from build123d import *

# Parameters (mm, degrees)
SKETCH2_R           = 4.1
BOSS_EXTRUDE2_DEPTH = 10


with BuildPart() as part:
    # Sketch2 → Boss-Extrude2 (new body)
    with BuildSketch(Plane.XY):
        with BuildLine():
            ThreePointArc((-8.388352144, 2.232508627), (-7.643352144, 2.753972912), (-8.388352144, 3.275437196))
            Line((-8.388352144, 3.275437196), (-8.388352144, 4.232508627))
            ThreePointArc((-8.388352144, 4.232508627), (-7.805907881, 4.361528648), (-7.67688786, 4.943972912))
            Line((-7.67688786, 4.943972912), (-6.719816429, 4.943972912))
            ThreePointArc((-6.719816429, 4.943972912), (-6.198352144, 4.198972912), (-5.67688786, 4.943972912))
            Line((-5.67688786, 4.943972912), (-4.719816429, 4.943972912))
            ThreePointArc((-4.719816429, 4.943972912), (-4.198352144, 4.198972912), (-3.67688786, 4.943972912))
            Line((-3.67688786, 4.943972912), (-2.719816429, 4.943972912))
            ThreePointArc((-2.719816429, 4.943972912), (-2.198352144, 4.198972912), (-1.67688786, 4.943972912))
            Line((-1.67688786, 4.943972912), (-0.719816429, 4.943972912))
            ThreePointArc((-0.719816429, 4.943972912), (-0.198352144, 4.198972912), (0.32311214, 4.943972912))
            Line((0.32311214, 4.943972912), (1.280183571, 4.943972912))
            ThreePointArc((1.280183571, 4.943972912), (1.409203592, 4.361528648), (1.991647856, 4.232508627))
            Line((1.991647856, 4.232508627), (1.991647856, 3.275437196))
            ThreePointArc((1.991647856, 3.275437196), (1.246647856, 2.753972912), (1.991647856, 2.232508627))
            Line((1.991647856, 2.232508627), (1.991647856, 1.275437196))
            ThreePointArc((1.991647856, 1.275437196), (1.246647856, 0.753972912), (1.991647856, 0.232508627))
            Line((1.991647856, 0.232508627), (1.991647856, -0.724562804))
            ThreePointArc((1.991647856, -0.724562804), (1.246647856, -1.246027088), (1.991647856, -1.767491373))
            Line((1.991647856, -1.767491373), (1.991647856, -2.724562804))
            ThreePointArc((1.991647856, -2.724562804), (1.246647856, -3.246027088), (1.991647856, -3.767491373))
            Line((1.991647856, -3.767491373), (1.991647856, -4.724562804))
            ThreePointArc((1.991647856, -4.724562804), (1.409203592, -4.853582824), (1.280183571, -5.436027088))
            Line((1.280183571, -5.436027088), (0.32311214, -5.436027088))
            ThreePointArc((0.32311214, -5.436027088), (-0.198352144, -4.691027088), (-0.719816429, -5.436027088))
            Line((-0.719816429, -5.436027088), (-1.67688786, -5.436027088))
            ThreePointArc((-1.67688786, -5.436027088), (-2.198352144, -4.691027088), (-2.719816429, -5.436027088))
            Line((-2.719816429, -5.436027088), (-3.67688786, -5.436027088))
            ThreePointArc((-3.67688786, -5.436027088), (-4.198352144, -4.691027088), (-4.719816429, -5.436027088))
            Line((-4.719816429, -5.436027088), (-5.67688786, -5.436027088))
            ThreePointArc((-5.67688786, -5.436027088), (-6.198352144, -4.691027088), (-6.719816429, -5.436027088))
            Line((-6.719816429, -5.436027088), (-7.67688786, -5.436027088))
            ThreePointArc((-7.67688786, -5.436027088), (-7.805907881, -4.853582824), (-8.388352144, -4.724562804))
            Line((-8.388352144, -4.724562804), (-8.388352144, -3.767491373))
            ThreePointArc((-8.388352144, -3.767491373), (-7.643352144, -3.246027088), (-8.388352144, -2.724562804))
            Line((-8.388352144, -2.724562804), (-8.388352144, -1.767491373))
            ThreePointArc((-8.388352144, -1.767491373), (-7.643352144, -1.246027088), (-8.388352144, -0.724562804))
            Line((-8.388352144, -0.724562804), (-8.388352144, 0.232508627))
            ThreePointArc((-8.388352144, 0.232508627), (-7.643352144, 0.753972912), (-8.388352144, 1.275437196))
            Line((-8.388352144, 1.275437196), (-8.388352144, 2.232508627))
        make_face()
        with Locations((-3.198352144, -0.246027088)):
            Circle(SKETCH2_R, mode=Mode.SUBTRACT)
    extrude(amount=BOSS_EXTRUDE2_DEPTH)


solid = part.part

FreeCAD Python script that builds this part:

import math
import FreeCAD as App
import Part
import Sketcher
from FreeCAD import Vector
Q = App.Units.Quantity

doc = App.newDocument("Part")
params = doc.addObject("Spreadsheet::Sheet", "Params")
for row, (alias, value) in enumerate([
    ("sketch1_diameter", "8.2 mm"),
    ("pad1_length", "10 mm"),
], start=1):
    params.set(f"A{row}", alias)
    params.set(f"B{row}", "=" + value)
    params.setAlias(f"B{row}", alias)

body = doc.addObject("PartDesign::Body", "Body")

sketch1 = doc.addObject("Sketcher::SketchObject", "Sketch")
body.addObject(sketch1)
sketch1.AttachmentSupport = (doc.XY_Plane, [""])
sketch1.MapMode = "FlatFace"
sketch1.addGeometry([
    Part.ArcOfCircle(Part.Circle(Vector(-8.2, 2.8, 0), Vector(0, 0, 1), 0.6), math.radians(-110), math.radians(110)),
    Part.LineSegment(Vector(-8.4, 2.2, 0), Vector(-8.4, 1.3, 0)),
    Part.ArcOfCircle(Part.Circle(Vector(-8.2, 0.8, 0), Vector(0, 0, 1), 0.6), math.radians(-110), math.radians(110)),
    Part.LineSegment(Vector(-8.4, 0.2, 0), Vector(-8.4, -0.7, 0)),
    Part.ArcOfCircle(Part.Circle(Vector(-8.2, -1.2, 0), Vector(0, 0, 1), 0.6), math.radians(-110), math.radians(110)),
    Part.LineSegment(Vector(-8.4, -1.8, 0), Vector(-8.4, -2.7, 0)),
    Part.ArcOfCircle(Part.Circle(Vector(-8.2, -3.2, 0), Vector(0, 0, 1), 0.6), math.radians(-110), math.radians(110)),
    Part.LineSegment(Vector(-8.4, -3.8, 0), Vector(-8.4, -4.7, 0)),
    Part.ArcOfCircle(Part.Circle(Vector(-8.2, -5.2, 0), Vector(0, 0, 1), 0.6), math.radians(-20), math.radians(110)),
    Part.LineSegment(Vector(-7.7, -5.4, 0), Vector(-6.7, -5.4, 0)),
    Part.ArcOfCircle(Part.Circle(Vector(-6.2, -5.2, 0), Vector(0, 0, 1), 0.6), math.radians(-20), math.radians(200)),
    Part.LineSegment(Vector(-5.7, -5.4, 0), Vector(-4.7, -5.4, 0)),
    Part.ArcOfCircle(Part.Circle(Vector(-4.2, -5.2, 0), Vector(0, 0, 1), 0.6), math.radians(-20), math.radians(200)),
    Part.LineSegment(Vector(-3.7, -5.4, 0), Vector(-2.7, -5.4, 0)),
    Part.ArcOfCircle(Part.Circle(Vector(-2.2, -5.2, 0), Vector(0, 0, 1), 0.6), math.radians(-20), math.radians(200)),
    Part.LineSegment(Vector(-1.7, -5.4, 0), Vector(-0.7, -5.4, 0)),
    Part.ArcOfCircle(Part.Circle(Vector(-0.2, -5.2, 0), Vector(0, 0, 1), 0.6), math.radians(-20), math.radians(200)),
    Part.LineSegment(Vector(0.3, -5.4, 0), Vector(1.3, -5.4, 0)),
    Part.ArcOfCircle(Part.Circle(Vector(1.8, -5.2, 0), Vector(0, 0, 1), 0.6), math.radians(70), math.radians(200)),
    Part.LineSegment(Vector(2, -4.7, 0), Vector(2, -3.8, 0)),
    Part.ArcOfCircle(Part.Circle(Vector(1.8, -3.2, 0), Vector(0, 0, 1), 0.6), math.radians(70), math.radians(290)),
    Part.LineSegment(Vector(2, -2.7, 0), Vector(2, -1.8, 0)),
    Part.ArcOfCircle(Part.Circle(Vector(1.8, -1.2, 0), Vector(0, 0, 1), 0.6), math.radians(70), math.radians(290)),
    Part.LineSegment(Vector(2, -0.7, 0), Vector(2, 0.2, 0)),
    Part.ArcOfCircle(Part.Circle(Vector(1.8, 0.8, 0), Vector(0, 0, 1), 0.6), math.radians(70), math.radians(290)),
    Part.LineSegment(Vector(2, 1.3, 0), Vector(2, 2.2, 0)),
    Part.ArcOfCircle(Part.Circle(Vector(1.8, 2.8, 0), Vector(0, 0, 1), 0.6), math.radians(70), math.radians(290)),
    Part.LineSegment(Vector(2, 3.3, 0), Vector(2, 4.2, 0)),
    Part.ArcOfCircle(Part.Circle(Vector(1.8, 4.8, 0), Vector(0, 0, 1), 0.6), math.radians(160), math.radians(290)),
    Part.LineSegment(Vector(1.3, 4.9, 0), Vector(0.3, 4.9, 0)),
    Part.ArcOfCircle(Part.Circle(Vector(-0.2, 4.8, 0), Vector(0, 0, 1), 0.6), math.radians(160), math.radians(380)),
    Part.LineSegment(Vector(-0.7, 4.9, 0), Vector(-1.7, 4.9, 0)),
    Part.ArcOfCircle(Part.Circle(Vector(-2.2, 4.8, 0), Vector(0, 0, 1), 0.6), math.radians(160), math.radians(380)),
    Part.LineSegment(Vector(-2.7, 4.9, 0), Vector(-3.7, 4.9, 0)),
    Part.ArcOfCircle(Part.Circle(Vector(-4.2, 4.8, 0), Vector(0, 0, 1), 0.6), math.radians(160), math.radians(380)),
    Part.LineSegment(Vector(-4.7, 4.9, 0), Vector(-5.7, 4.9, 0)),
    Part.ArcOfCircle(Part.Circle(Vector(-6.2, 4.8, 0), Vector(0, 0, 1), 0.6), math.radians(160), math.radians(380)),
    Part.LineSegment(Vector(-6.7, 4.9, 0), Vector(-7.7, 4.9, 0)),
    Part.ArcOfCircle(Part.Circle(Vector(-8.2, 4.8, 0), Vector(0, 0, 1), 0.6), math.radians(-110), math.radians(20)),
    Part.LineSegment(Vector(-8.4, 4.2, 0), Vector(-8.4, 3.3, 0)),
    Part.Circle(Vector(-3.2, -0.2, 0), Vector(0, 0, 1), 4.1),
], False)
sketch1.addConstraint([
    Sketcher.Constraint("Coincident", 0, 1, 1, 1),
    Sketcher.Constraint("Coincident", 1, 2, 2, 2),
    Sketcher.Constraint("Coincident", 2, 1, 3, 1),
    Sketcher.Constraint("Coincident", 3, 2, 4, 2),
    Sketcher.Constraint("Coincident", 4, 1, 5, 1),
    Sketcher.Constraint("Coincident", 5, 2, 6, 2),
    Sketcher.Constraint("Coincident", 6, 1, 7, 1),
    Sketcher.Constraint("Coincident", 7, 2, 8, 2),
    Sketcher.Constraint("Coincident", 8, 1, 9, 1),
    Sketcher.Constraint("Coincident", 9, 2, 10, 2),
    Sketcher.Constraint("Coincident", 10, 1, 11, 1),
    Sketcher.Constraint("Coincident", 11, 2, 12, 2),
    Sketcher.Constraint("Coincident", 12, 1, 13, 1),
    Sketcher.Constraint("Coincident", 13, 2, 14, 2),
    Sketcher.Constraint("Coincident", 14, 1, 15, 1),
    Sketcher.Constraint("Coincident", 15, 2, 16, 2),
    Sketcher.Constraint("Coincident", 16, 1, 17, 1),
    Sketcher.Constraint("Coincident", 17, 2, 18, 2),
    Sketcher.Constraint("Coincident", 18, 1, 19, 1),
    Sketcher.Constraint("Coincident", 19, 2, 20, 2),
    Sketcher.Constraint("Coincident", 20, 1, 21, 1),
    Sketcher.Constraint("Coincident", 21, 2, 22, 2),
    Sketcher.Constraint("Coincident", 22, 1, 23, 1),
    Sketcher.Constraint("Coincident", 23, 2, 24, 2),
    Sketcher.Constraint("Coincident", 24, 1, 25, 1),
    Sketcher.Constraint("Coincident", 25, 2, 26, 2),
    Sketcher.Constraint("Coincident", 26, 1, 27, 1),
    Sketcher.Constraint("Coincident", 27, 2, 28, 2),
    Sketcher.Constraint("Coincident", 28, 1, 29, 1),
    Sketcher.Constraint("Coincident", 29, 2, 30, 2),
    Sketcher.Constraint("Coincident", 30, 1, 31, 1),
    Sketcher.Constraint("Coincident", 31, 2, 32, 2),
    Sketcher.Constraint("Coincident", 32, 1, 33, 1),
    Sketcher.Constraint("Coincident", 33, 2, 34, 2),
    Sketcher.Constraint("Coincident", 34, 1, 35, 1),
    Sketcher.Constraint("Coincident", 35, 2, 36, 2),
    Sketcher.Constraint("Coincident", 36, 1, 37, 1),
    Sketcher.Constraint("Coincident", 37, 2, 38, 2),
    Sketcher.Constraint("Coincident", 38, 1, 39, 1),
    Sketcher.Constraint("Coincident", 39, 2, 0, 2),
    Sketcher.Constraint("Vertical", 1),
    Sketcher.Constraint("Vertical", 3),
    Sketcher.Constraint("Vertical", 5),
    Sketcher.Constraint("Vertical", 7),
    Sketcher.Constraint("Horizontal", 9),
    Sketcher.Constraint("Horizontal", 11),
    Sketcher.Constraint("Horizontal", 13),
    Sketcher.Constraint("Horizontal", 15),
    Sketcher.Constraint("Horizontal", 17),
    Sketcher.Constraint("Vertical", 19),
    Sketcher.Constraint("Vertical", 21),
    Sketcher.Constraint("Vertical", 23),
    Sketcher.Constraint("Vertical", 25),
    Sketcher.Constraint("Vertical", 27),
    Sketcher.Constraint("Horizontal", 29),
    Sketcher.Constraint("Horizontal", 31),
    Sketcher.Constraint("Horizontal", 33),
    Sketcher.Constraint("Horizontal", 35),
    Sketcher.Constraint("Horizontal", 37),
    Sketcher.Constraint("Vertical", 39),
    Sketcher.Constraint("Equal", 0, 2),
    Sketcher.Constraint("Equal", 2, 4),
    Sketcher.Constraint("Equal", 4, 6),
    Sketcher.Constraint("Equal", 6, 8),
    Sketcher.Constraint("Equal", 8, 10),
    Sketcher.Constraint("Equal", 10, 12),
    Sketcher.Constraint("Equal", 12, 14),
    Sketcher.Constraint("Equal", 14, 16),
    Sketcher.Constraint("Equal", 16, 18),
    Sketcher.Constraint("Equal", 18, 20),
    Sketcher.Constraint("Equal", 20, 22),
    Sketcher.Constraint("Equal", 22, 24),
    Sketcher.Constraint("Equal", 24, 26),
    Sketcher.Constraint("Equal", 26, 28),
    Sketcher.Constraint("Equal", 28, 30),
    Sketcher.Constraint("Equal", 30, 32),
    Sketcher.Constraint("Equal", 32, 34),
    Sketcher.Constraint("Equal", 34, 36),
    Sketcher.Constraint("Equal", 36, 38),
    Sketcher.Constraint("Horizontal", 8, 3, 10, 3),
    Sketcher.Constraint("Horizontal", 10, 3, 12, 3),
    Sketcher.Constraint("Horizontal", 12, 3, 14, 3),
    Sketcher.Constraint("Horizontal", 14, 3, 16, 3),
    Sketcher.Constraint("Horizontal", 16, 3, 18, 3),
    Sketcher.Constraint("Horizontal", 6, 3, 20, 3),
    Sketcher.Constraint("Horizontal", 4, 3, 22, 3),
    Sketcher.Constraint("Horizontal", 2, 3, 24, 3),
    Sketcher.Constraint("Horizontal", 0, 3, 26, 3),
    Sketcher.Constraint("Horizontal", 28, 3, 30, 3),
    Sketcher.Constraint("Horizontal", 30, 3, 32, 3),
    Sketcher.Constraint("Horizontal", 32, 3, 34, 3),
    Sketcher.Constraint("Horizontal", 34, 3, 36, 3),
    Sketcher.Constraint("Horizontal", 36, 3, 38, 3),
    Sketcher.Constraint("Horizontal", 9, 2, 10, 1),
    Sketcher.Constraint("Horizontal", 11, 2, 12, 1),
    Sketcher.Constraint("Horizontal", 13, 2, 14, 1),
    Sketcher.Constraint("Horizontal", 15, 2, 16, 1),
    Sketcher.Constraint("Horizontal", 7, 2, 18, 1),
    Sketcher.Constraint("Horizontal", 6, 1, 19, 2),
    Sketcher.Constraint("Horizontal", 5, 2, 20, 1),
    Sketcher.Constraint("Horizontal", 4, 1, 21, 2),
    Sketcher.Constraint("Horizontal", 3, 2, 22, 1),
    Sketcher.Constraint("Horizontal", 2, 1, 23, 2),
    Sketcher.Constraint("Horizontal", 1, 2, 24, 1),
    Sketcher.Constraint("Horizontal", 0, 1, 25, 2),
    Sketcher.Constraint("Horizontal", 29, 2, 30, 1),
    Sketcher.Constraint("Horizontal", 31, 2, 32, 1),
    Sketcher.Constraint("Horizontal", 33, 2, 34, 1),
    Sketcher.Constraint("Horizontal", 35, 2, 36, 1),
    Sketcher.Constraint("Horizontal", 27, 2, 38, 1),
    Sketcher.Constraint("Horizontal", 26, 1, 39, 2),
    Sketcher.Constraint("Vertical", 0, 3, 2, 3),
    Sketcher.Constraint("Vertical", 2, 3, 4, 3),
    Sketcher.Constraint("Vertical", 4, 3, 6, 3),
    Sketcher.Constraint("Vertical", 6, 3, 8, 3),
    Sketcher.Constraint("Vertical", 26, 3, 28, 3),
    Sketcher.Constraint("Vertical", 16, 3, 30, 3),
    Sketcher.Constraint("Vertical", 14, 3, 32, 3),
    Sketcher.Constraint("Vertical", 12, 3, 34, 3),
    Sketcher.Constraint("Vertical", 10, 3, 36, 3),
    Sketcher.Constraint("Vertical", 1, 2, 2, 1),
    Sketcher.Constraint("Vertical", 3, 2, 4, 1),
    Sketcher.Constraint("Vertical", 5, 2, 6, 1),
    Sketcher.Constraint("Vertical", 25, 2, 26, 1),
    Sketcher.Constraint("Vertical", 17, 2, 28, 1),
    Sketcher.Constraint("Equal", 9, 11),
    Sketcher.Constraint("Equal", 11, 13),
    Sketcher.Constraint("Equal", 13, 15),
    Sketcher.Constraint("Equal", 15, 17),
    Sketcher.Constraint("Equal", 37, 1),
    Sketcher.Constraint("Equal", 1, 3),
    Sketcher.Constraint("Equal", 3, 5),
    Sketcher.Constraint("Equal", 5, 7),
    Sketcher.Constraint("Equal", 25, 27),
    Sketcher.Constraint("Diameter", 40, Q("8.2 mm")),
    Sketcher.Constraint("Radius", 0, Q("0.555 mm")),
    Sketcher.Constraint("DistanceX", 9, 1, 9, 2, Q("0.957071 mm")),
    Sketcher.Constraint("DistanceY", -1, 1, 0, 1, Q("2.232509 mm")),
    Sketcher.Constraint("DistanceY", -1, 1, 2, 1, Q("0.232509 mm")),
    Sketcher.Constraint("DistanceX", 0, 3, -1, 1, Q("8.198352 mm")),
    Sketcher.Constraint("DistanceX", 10, 3, -1, 1, Q("6.198352 mm")),
    Sketcher.Constraint("DistanceX", 40, 3, -1, 1, Q("3.198352 mm")),
    Sketcher.Constraint("DistanceY", 40, 3, -1, 1, Q("0.246027 mm")),
])
sketch1.setExpression("Constraints[134]", "Params.sketch1_diameter")
pad1 = doc.addObject("PartDesign::Pad", "Pad")
body.addObject(pad1)
pad1.Profile = sketch1
pad1.setExpression("Length", "Params.pad1_length")

doc.recompute()
